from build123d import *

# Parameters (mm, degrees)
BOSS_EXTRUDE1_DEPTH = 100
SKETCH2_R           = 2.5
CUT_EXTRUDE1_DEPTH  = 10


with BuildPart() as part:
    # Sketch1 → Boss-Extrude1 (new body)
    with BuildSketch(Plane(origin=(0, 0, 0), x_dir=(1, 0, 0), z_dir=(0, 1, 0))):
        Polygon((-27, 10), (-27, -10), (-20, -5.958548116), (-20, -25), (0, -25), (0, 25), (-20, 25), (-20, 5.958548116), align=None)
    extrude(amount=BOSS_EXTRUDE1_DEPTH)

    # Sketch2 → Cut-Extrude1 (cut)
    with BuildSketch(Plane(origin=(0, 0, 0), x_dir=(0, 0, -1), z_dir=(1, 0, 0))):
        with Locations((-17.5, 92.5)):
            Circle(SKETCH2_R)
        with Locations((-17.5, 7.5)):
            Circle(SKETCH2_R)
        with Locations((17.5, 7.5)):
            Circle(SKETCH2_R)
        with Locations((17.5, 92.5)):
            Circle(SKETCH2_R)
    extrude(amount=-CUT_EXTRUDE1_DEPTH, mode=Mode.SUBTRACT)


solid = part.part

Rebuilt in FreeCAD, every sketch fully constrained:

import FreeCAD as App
import Part
import Sketcher
from FreeCAD import Vector
Q = App.Units.Quantity


def add_polygon(sketch, points):
    """Adds a closed chain of lines whose ends are joined by coincident constraints."""
    first, n = sketch.GeometryCount, len(points)
    for a, b in zip(points, points[1:] + points[:1]):
        sketch.addGeometry(Part.LineSegment(App.Vector(*a, 0), App.Vector(*b, 0)), False)
    for i in range(n):
        sketch.addConstraint(Sketcher.Constraint("Coincident", first + i, 2, first + (i + 1) % n, 1))

doc = App.newDocument("Part")
params = doc.addObject("Spreadsheet::Sheet", "Params")
for row, (alias, value) in enumerate([
    ("sketch1_width", "20 mm"),
    ("sketch1_height", "50 mm"),
    ("pad1_length", "100 mm"),
    ("sketch2_diameter", "5 mm"),
    ("pocket1_length", "10 mm"),
], start=1):
    params.set(f"A{row}", alias)
    params.set(f"B{row}", "=" + value)
    params.setAlias(f"B{row}", alias)

body = doc.addObject("PartDesign::Body", "Body")

# Sketch on XZ plane
sketch1 = doc.addObject("Sketcher::SketchObject", "Sketch")
body.addObject(sketch1)
sketch1.AttachmentSupport = (doc.XZ_Plane, [""])
sketch1.MapMode = "FlatFace"
add_polygon(sketch1, [(-27, -10), (-27, 10), (-20, 6), (-20, 25), (0, 25), (0, -25), (-20, -25), (-20, -6)])  # lines 0-7
sketch1.addConstraint([
    Sketcher.Constraint("Vertical", 0),
    Sketcher.Constraint("Vertical", 2),
    Sketcher.Constraint("Horizontal", 3),
    Sketcher.Constraint("Vertical", 4),
    Sketcher.Constraint("Horizontal", 5),
    Sketcher.Constraint("Vertical", 6),
    Sketcher.Constraint("Symmetric", 3, 2, 4, 2, -1, 1),
    Sketcher.Constraint("Symmetric", 1, 2, 6, 2, -1),
    Sketcher.Constraint("Equal", 5, 0),
    Sketcher.Constraint("Equal", 1, 7),
    Sketcher.Constraint("DistanceX", 3, 1, 3, 2, Q("20 mm")),
    Sketcher.Constraint("DistanceY", 4, 2, 4, 1, Q("50 mm")),
    Sketcher.Constraint("Angle", 1, Q("-30 deg")),
    Sketcher.Constraint("DistanceX", 0, 2, -1, 1, Q("27 mm")),
])
sketch1.setExpression("Constraints[18]", "Params.sketch1_width")
sketch1.setExpression("Constraints[19]", "Params.sketch1_height")
pad1 = doc.addObject("PartDesign::Pad", "Pad")
body.addObject(pad1)
pad1.Profile = sketch1
pad1.setExpression("Length", "Params.pad1_length")
pad1.Reversed = True

# Sketch on YZ plane
sketch2 = doc.addObject("Sketcher::SketchObject", "Sketch001")
body.addObject(sketch2)
sketch2.AttachmentSupport = (doc.YZ_Plane, [""])
sketch2.MapMode = "FlatFace"
sketch2.addGeometry([
    Part.Circle(Vector(92.5, 17.5, 0), Vector(0, 0, 1), 2.5),
    Part.Circle(Vector(7.5, 17.5, 0), Vector(0, 0, 1), 2.5),
    Part.Circle(Vector(7.5, -17.5, 0), Vector(0, 0, 1), 2.5),
    Part.Circle(Vector(92.5, -17.5, 0), Vector(0, 0, 1), 2.5),
], False)
sketch2.addConstraint([
    Sketcher.Constraint("Equal", 0, 1),
    Sketcher.Constraint("Equal", 1, 2),
    Sketcher.Constraint("Equal", 2, 3),
    Sketcher.Constraint("Symmetric", 1, 3, 2, 3, -1),
    Sketcher.Constraint("Symmetric", 0, 3, 3, 3, -1),
    Sketcher.Constraint("Horizontal", 0, 3, 1, 3),
    Sketcher.Constraint("Diameter", 0, Q("5 mm")),
    Sketcher.Constraint("DistanceX", 1, 3, 0, 3, Q("85 mm")),
    Sketcher.Constraint("DistanceY", 2, 3, 1, 3, Q("35 mm")),
    Sketcher.Constraint("DistanceX", -1, 1, 0, 3, Q("92.5 mm")),
])
sketch2.setExpression("Constraints[6]", "Params.sketch2_diameter")
pocket1 = doc.addObject("PartDesign::Pocket", "Pocket")
body.addObject(pocket1)
pocket1.Profile = sketch2
pocket1.setExpression("Length", "Params.pocket1_length")

doc.recompute()
